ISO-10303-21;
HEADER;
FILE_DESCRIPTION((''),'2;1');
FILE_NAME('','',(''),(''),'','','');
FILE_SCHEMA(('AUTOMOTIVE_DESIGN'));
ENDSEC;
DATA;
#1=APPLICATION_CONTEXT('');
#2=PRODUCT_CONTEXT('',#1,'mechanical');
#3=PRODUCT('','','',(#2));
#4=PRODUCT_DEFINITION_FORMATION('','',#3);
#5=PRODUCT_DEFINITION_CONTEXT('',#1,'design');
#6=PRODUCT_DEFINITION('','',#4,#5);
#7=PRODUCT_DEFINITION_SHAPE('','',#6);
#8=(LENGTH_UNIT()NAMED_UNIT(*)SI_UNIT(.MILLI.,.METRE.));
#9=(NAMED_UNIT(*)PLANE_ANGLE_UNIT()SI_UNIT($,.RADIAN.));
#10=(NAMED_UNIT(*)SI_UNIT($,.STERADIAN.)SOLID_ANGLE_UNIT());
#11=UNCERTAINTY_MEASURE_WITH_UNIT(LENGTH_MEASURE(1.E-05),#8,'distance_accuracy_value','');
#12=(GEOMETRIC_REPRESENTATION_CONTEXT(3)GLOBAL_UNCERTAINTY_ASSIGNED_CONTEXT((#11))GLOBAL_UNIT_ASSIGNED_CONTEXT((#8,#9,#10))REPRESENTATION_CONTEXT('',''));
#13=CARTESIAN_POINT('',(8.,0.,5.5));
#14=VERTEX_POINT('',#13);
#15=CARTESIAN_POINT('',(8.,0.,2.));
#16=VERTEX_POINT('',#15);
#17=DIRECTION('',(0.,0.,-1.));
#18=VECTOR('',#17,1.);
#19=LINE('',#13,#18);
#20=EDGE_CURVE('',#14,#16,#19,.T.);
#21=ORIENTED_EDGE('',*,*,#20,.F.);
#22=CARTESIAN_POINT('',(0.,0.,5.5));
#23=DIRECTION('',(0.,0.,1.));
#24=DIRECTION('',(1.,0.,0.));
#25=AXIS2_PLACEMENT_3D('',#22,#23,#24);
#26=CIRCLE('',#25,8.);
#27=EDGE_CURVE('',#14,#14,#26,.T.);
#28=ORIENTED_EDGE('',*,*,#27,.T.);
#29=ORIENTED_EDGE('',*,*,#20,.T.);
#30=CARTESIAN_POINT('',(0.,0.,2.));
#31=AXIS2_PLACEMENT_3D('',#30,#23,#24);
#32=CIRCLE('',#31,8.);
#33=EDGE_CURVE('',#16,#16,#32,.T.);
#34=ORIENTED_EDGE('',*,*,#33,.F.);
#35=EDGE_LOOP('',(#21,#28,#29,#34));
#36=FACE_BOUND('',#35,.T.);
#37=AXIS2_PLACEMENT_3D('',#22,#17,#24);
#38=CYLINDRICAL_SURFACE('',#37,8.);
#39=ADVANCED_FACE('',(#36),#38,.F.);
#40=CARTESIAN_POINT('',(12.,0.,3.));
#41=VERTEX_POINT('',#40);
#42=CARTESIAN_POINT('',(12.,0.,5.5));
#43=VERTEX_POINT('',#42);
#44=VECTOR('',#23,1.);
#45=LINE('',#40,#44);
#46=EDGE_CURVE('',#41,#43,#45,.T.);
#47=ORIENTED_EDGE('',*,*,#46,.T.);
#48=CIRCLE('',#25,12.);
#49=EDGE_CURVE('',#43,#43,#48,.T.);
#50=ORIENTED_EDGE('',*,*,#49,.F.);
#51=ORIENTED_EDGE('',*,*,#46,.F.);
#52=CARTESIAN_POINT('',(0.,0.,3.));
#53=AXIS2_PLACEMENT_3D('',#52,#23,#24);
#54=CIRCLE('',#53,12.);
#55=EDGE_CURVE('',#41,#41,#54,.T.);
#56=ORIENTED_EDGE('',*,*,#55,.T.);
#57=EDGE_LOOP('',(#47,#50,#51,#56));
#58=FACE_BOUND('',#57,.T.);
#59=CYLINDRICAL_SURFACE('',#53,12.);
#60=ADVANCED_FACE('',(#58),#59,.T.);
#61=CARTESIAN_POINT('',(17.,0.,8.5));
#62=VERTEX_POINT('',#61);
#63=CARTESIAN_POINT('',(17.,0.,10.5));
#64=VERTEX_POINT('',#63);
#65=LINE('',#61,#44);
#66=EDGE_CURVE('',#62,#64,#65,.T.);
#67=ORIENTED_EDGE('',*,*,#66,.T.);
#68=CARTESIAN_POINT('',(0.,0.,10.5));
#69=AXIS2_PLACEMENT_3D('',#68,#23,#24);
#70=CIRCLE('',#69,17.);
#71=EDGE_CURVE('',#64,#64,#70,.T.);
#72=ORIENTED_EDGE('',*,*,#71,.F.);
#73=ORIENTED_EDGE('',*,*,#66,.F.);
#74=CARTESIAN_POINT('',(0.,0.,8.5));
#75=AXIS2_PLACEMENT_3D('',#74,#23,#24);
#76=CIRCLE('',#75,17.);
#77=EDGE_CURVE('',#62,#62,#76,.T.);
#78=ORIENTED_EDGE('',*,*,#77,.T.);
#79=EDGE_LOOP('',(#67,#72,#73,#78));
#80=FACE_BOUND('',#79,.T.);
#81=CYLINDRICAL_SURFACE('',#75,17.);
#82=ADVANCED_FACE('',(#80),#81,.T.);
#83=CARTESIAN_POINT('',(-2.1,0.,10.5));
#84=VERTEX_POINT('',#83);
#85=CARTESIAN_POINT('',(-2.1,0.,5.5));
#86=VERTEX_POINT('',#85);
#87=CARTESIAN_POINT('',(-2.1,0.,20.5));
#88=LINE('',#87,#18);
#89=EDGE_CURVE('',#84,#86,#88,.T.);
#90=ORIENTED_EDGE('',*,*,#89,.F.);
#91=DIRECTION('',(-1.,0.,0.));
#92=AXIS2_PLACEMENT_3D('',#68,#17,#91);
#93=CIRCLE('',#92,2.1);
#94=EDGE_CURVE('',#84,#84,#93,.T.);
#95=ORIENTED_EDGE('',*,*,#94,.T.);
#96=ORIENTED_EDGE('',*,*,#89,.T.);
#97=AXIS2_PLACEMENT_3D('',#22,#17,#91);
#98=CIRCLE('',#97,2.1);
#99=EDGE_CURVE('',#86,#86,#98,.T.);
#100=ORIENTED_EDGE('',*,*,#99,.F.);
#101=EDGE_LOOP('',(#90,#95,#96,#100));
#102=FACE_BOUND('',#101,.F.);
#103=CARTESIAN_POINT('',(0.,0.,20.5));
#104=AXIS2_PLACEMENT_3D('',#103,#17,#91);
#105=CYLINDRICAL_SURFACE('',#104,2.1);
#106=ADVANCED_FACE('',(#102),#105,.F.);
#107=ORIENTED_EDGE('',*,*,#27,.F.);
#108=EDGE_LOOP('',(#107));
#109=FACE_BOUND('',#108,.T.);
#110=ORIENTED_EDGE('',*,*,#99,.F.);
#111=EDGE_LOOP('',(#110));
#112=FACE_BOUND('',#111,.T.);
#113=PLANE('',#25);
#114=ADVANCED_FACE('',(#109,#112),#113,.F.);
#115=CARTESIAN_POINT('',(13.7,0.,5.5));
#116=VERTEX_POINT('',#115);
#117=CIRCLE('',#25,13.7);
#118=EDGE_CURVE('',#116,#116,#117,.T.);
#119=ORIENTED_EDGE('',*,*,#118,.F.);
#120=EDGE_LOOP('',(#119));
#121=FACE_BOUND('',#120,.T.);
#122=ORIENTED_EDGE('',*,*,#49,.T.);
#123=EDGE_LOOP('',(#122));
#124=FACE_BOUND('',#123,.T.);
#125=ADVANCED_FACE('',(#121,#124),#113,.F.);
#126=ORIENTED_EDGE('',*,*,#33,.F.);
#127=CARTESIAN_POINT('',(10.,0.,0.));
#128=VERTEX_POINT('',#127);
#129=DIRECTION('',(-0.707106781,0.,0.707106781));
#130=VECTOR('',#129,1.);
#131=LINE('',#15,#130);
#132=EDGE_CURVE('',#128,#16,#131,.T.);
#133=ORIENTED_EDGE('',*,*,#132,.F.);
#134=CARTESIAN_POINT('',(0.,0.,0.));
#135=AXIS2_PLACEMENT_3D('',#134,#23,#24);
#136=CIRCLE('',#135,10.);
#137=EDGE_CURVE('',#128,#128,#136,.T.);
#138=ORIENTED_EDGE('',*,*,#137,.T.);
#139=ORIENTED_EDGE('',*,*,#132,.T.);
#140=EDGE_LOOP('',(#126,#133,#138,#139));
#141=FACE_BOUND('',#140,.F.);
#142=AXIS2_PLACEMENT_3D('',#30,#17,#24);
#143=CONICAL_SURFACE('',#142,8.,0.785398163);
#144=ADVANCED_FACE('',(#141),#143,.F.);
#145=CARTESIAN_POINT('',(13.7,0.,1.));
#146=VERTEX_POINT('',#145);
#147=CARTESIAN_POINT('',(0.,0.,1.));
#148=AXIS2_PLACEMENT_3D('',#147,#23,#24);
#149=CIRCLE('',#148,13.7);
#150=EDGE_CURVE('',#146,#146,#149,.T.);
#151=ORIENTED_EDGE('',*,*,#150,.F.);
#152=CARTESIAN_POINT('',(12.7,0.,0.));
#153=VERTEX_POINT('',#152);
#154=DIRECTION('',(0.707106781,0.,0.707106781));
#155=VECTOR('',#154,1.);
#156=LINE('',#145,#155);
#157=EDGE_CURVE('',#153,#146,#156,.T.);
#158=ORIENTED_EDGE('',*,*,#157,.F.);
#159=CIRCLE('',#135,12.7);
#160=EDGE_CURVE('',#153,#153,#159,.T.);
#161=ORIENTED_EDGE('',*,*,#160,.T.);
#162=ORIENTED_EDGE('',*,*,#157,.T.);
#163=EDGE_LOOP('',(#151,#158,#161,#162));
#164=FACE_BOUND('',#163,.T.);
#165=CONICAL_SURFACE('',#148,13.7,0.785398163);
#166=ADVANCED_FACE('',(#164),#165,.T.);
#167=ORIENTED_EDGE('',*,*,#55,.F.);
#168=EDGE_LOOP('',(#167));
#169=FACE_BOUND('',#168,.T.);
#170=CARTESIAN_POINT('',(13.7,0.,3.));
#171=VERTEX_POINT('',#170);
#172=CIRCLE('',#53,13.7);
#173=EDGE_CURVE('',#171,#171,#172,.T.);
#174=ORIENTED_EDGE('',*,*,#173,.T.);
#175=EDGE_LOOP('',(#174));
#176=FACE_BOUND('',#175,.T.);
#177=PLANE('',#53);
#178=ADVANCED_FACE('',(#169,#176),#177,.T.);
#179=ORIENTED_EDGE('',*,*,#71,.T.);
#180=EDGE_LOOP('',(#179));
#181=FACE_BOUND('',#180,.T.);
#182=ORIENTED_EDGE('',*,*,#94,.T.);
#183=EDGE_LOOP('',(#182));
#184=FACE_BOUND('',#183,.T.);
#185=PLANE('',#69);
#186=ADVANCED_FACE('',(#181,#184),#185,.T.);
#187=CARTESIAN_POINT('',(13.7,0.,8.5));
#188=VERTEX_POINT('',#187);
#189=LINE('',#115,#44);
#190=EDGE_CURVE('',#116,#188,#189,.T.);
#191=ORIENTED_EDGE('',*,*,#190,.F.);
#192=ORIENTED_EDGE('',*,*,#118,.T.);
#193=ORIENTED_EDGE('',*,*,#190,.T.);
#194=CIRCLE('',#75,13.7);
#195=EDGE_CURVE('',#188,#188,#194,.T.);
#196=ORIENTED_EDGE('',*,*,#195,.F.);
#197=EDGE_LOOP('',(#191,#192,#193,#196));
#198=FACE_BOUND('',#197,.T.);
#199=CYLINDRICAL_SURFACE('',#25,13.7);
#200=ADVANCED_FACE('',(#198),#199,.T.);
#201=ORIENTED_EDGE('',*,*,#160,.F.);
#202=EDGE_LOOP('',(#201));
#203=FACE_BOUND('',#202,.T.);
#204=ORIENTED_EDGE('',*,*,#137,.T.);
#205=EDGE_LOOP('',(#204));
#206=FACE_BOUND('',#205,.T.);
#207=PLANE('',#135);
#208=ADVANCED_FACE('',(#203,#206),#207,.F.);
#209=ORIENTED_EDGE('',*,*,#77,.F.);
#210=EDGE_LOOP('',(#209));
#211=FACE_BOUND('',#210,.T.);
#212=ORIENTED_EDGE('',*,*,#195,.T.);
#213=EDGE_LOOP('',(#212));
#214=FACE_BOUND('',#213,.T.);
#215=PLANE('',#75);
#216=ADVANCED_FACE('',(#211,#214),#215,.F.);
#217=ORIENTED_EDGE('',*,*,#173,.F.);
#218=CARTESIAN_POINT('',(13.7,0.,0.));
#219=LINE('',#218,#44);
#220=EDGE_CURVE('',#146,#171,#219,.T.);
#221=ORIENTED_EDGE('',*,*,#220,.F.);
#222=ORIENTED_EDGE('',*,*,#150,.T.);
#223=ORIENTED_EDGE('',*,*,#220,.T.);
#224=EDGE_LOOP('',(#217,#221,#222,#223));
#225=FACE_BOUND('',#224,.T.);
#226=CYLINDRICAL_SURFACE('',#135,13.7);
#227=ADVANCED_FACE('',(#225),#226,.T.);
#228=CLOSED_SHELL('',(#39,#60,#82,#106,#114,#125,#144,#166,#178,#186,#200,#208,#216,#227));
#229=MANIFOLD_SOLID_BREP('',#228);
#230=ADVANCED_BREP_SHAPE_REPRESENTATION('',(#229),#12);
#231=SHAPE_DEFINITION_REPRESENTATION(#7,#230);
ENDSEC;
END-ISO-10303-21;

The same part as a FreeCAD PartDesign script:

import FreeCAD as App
import Part
import Sketcher


def edges_at(feature, points):
    """Names of the edges that pass closest to the given points."""
    edges = feature.Shape.Edges
    near = lambda p: min(range(len(edges)), key=lambda i: edges[i].distToShape(Part.Vertex(*p))[0])
    return sorted({f"Edge{near(p) + 1}" for p in points})

doc = App.newDocument("Part")
params = doc.addObject("Spreadsheet::Sheet", "Params")
for row, (alias, value) in enumerate([
    ("sketch1_width", "17 mm"),
    ("sketch1_width2", "8 mm"),
    ("sketch1_height", "5 mm"),
    ("sketch1_height2", "3 mm"),
    ("sketch1_width3", "5.7 mm"),
    ("revolution_angle", "360 deg"),
    ("sketch2_diameter", "4.2 mm"),
    ("hole_diameter", "4.2 mm"),
    ("hole_depth", "10 mm"),
    ("chamfer_size", "1 mm"),
    ("chamfer2_size", "2 mm"),
], start=1):
    params.set(f"A{row}", alias)
    params.set(f"B{row}", "=" + value)
    params.setAlias(f"B{row}", alias)

body = doc.addObject("PartDesign::Body", "Body")

sketch1 = body.newObject("Sketcher::SketchObject", "Sketch")
sketch1.AttachmentSupport = (doc.getObject("XZ_Plane"), [""])
sketch1.MapMode = "FlatFace"
sketch1.addGeometry([
    Part.LineSegment(App.Vector(17, 10.5, 0), App.Vector(0, 10.5, 0)),
    Part.LineSegment(App.Vector(0, 10.5, 0), App.Vector(0, 5.5, 0)),
    Part.LineSegment(App.Vector(0, 5.5, 0), App.Vector(8, 5.5, 0)),
    Part.LineSegment(App.Vector(8, 5.5, 0), App.Vector(8, 0, 0)),
    Part.LineSegment(App.Vector(8, 0, 0), App.Vector(13.7, 0, 0)),
    Part.LineSegment(App.Vector(13.7, 0, 0), App.Vector(13.7, 3, 0)),
    Part.LineSegment(App.Vector(13.7, 3, 0), App.Vector(12, 3, 0)),
    Part.LineSegment(App.Vector(12, 3, 0), App.Vector(12, 5.5, 0)),
    Part.LineSegment(App.Vector(12, 5.5, 0), App.Vector(13.7, 5.5, 0)),
    Part.LineSegment(App.Vector(13.7, 5.5, 0), App.Vector(13.7, 8.5, 0)),
    Part.LineSegment(App.Vector(13.7, 8.5, 0), App.Vector(17, 8.5, 0)),
    Part.LineSegment(App.Vector(17, 8.5, 0), App.Vector(17, 10.5, 0)),
], False)
sketch1.addConstraint([
    Sketcher.Constraint("Coincident", 0, 2, 1, 1),
    Sketcher.Constraint("Coincident", 1, 2, 2, 1),
    Sketcher.Constraint("Coincident", 2, 2, 3, 1),
    Sketcher.Constraint("Coincident", 3, 2, 4, 1),
    Sketcher.Constraint("Coincident", 4, 2, 5, 1),
    Sketcher.Constraint("Coincident", 5, 2, 6, 1),
    Sketcher.Constraint("Coincident", 6, 2, 7, 1),
    Sketcher.Constraint("Coincident", 7, 2, 8, 1),
    Sketcher.Constraint("Coincident", 8, 2, 9, 1),
    Sketcher.Constraint("Coincident", 9, 2, 10, 1),
    Sketcher.Constraint("Coincident", 10, 2, 11, 1),
    Sketcher.Constraint("Coincident", 11, 2, 0, 1),
    Sketcher.Constraint("Horizontal", 0),
    Sketcher.Constraint("Vertical", 1),
    Sketcher.Constraint("Horizontal", 2),
    Sketcher.Constraint("Vertical", 3),
    Sketcher.Constraint("Horizontal", 4),
    Sketcher.Constraint("Vertical", 5),
    Sketcher.Constraint("Horizontal", 6),
    Sketcher.Constraint("Vertical", 7),
    Sketcher.Constraint("Horizontal", 8),
    Sketcher.Constraint("Vertical", 9),
    Sketcher.Constraint("Horizontal", 10),
    Sketcher.Constraint("Vertical", 11),
    Sketcher.Constraint("PointOnObject", 0, 2, -2),
    Sketcher.Constraint("PointOnObject", 3, 2, -1),
    Sketcher.Constraint("Horizontal", 2, 2, 7, 2),
    Sketcher.Constraint("Vertical", 5, 2, 8, 2),
    Sketcher.Constraint("Equal", 5, 9),
    Sketcher.Constraint("DistanceX", 0, 2, 0, 1, 17.0),
    Sketcher.Constraint("DistanceX", 2, 1, 2, 2, 8.0),
    Sketcher.Constraint("DistanceY", 1, 2, 1, 1, 5.0),
    Sketcher.Constraint("DistanceY", 5, 1, 5, 2, 3.0),
    Sketcher.Constraint("DistanceX", 4, 1, 4, 2, 5.7),
    Sketcher.Constraint("DistanceX", 6, 2, 6, 1, 1.7),
    Sketcher.Constraint("DistanceY", 3, 2, 3, 1, 5.5),
])
sketch1.setExpression("Constraints[29]", "Params.sketch1_width")
sketch1.setExpression("Constraints[30]", "Params.sketch1_width2")
sketch1.setExpression("Constraints[31]", "Params.sketch1_height")
sketch1.setExpression("Constraints[32]", "Params.sketch1_height2")
sketch1.setExpression("Constraints[33]", "Params.sketch1_width3")
revolution = body.newObject("PartDesign::Revolution", "Revolution")
revolution.Profile = sketch1
revolution.ReferenceAxis = (sketch1, ["V_Axis"])
revolution.setExpression("Angle", "Params.revolution_angle")

sketch2 = body.newObject("Sketcher::SketchObject", "Sketch001")
sketch2.AttachmentSupport = (doc.getObject("XY_Plane"), [""])
sketch2.MapMode = "FlatFace"
sketch2.AttachmentOffset = App.Placement(App.Vector(0, 0, 10.5), App.Rotation())
sketch2.addGeometry(Part.Circle(App.Vector(0, 0, 0), App.Vector(0, 0, 1), 2.1), False)
sketch2.addConstraint([
    Sketcher.Constraint("Coincident", 0, 3, -1, 1),
    Sketcher.Constraint("Diameter", 0, 4.2),
])
sketch2.setExpression("Constraints[1]", "Params.sketch2_diameter")
doc.recompute()
hole = body.newObject("PartDesign::Hole", "Hole")
hole.Profile = sketch2
hole.ThreadType = "None"
hole.setExpression("Diameter", "Params.hole_diameter")
hole.DepthType = "Dimension"
hole.setExpression("Depth", "Params.hole_depth")
hole.DrillPoint = "Angled"
hole.DrillPointAngle = 118
doc.recompute()

chamfer = body.newObject("PartDesign::Chamfer", "Chamfer")
chamfer.Base = (hole, edges_at(hole, [(-13.7, 0, 0)]))
chamfer.setExpression("Size", "Params.chamfer_size")
doc.recompute()

chamfer2 = body.newObject("PartDesign::Chamfer", "Chamfer001")
chamfer2.Base = (chamfer, edges_at(chamfer, [(-8, 0, 0)]))
chamfer2.setExpression("Size", "Params.chamfer2_size")

doc.recompute()
